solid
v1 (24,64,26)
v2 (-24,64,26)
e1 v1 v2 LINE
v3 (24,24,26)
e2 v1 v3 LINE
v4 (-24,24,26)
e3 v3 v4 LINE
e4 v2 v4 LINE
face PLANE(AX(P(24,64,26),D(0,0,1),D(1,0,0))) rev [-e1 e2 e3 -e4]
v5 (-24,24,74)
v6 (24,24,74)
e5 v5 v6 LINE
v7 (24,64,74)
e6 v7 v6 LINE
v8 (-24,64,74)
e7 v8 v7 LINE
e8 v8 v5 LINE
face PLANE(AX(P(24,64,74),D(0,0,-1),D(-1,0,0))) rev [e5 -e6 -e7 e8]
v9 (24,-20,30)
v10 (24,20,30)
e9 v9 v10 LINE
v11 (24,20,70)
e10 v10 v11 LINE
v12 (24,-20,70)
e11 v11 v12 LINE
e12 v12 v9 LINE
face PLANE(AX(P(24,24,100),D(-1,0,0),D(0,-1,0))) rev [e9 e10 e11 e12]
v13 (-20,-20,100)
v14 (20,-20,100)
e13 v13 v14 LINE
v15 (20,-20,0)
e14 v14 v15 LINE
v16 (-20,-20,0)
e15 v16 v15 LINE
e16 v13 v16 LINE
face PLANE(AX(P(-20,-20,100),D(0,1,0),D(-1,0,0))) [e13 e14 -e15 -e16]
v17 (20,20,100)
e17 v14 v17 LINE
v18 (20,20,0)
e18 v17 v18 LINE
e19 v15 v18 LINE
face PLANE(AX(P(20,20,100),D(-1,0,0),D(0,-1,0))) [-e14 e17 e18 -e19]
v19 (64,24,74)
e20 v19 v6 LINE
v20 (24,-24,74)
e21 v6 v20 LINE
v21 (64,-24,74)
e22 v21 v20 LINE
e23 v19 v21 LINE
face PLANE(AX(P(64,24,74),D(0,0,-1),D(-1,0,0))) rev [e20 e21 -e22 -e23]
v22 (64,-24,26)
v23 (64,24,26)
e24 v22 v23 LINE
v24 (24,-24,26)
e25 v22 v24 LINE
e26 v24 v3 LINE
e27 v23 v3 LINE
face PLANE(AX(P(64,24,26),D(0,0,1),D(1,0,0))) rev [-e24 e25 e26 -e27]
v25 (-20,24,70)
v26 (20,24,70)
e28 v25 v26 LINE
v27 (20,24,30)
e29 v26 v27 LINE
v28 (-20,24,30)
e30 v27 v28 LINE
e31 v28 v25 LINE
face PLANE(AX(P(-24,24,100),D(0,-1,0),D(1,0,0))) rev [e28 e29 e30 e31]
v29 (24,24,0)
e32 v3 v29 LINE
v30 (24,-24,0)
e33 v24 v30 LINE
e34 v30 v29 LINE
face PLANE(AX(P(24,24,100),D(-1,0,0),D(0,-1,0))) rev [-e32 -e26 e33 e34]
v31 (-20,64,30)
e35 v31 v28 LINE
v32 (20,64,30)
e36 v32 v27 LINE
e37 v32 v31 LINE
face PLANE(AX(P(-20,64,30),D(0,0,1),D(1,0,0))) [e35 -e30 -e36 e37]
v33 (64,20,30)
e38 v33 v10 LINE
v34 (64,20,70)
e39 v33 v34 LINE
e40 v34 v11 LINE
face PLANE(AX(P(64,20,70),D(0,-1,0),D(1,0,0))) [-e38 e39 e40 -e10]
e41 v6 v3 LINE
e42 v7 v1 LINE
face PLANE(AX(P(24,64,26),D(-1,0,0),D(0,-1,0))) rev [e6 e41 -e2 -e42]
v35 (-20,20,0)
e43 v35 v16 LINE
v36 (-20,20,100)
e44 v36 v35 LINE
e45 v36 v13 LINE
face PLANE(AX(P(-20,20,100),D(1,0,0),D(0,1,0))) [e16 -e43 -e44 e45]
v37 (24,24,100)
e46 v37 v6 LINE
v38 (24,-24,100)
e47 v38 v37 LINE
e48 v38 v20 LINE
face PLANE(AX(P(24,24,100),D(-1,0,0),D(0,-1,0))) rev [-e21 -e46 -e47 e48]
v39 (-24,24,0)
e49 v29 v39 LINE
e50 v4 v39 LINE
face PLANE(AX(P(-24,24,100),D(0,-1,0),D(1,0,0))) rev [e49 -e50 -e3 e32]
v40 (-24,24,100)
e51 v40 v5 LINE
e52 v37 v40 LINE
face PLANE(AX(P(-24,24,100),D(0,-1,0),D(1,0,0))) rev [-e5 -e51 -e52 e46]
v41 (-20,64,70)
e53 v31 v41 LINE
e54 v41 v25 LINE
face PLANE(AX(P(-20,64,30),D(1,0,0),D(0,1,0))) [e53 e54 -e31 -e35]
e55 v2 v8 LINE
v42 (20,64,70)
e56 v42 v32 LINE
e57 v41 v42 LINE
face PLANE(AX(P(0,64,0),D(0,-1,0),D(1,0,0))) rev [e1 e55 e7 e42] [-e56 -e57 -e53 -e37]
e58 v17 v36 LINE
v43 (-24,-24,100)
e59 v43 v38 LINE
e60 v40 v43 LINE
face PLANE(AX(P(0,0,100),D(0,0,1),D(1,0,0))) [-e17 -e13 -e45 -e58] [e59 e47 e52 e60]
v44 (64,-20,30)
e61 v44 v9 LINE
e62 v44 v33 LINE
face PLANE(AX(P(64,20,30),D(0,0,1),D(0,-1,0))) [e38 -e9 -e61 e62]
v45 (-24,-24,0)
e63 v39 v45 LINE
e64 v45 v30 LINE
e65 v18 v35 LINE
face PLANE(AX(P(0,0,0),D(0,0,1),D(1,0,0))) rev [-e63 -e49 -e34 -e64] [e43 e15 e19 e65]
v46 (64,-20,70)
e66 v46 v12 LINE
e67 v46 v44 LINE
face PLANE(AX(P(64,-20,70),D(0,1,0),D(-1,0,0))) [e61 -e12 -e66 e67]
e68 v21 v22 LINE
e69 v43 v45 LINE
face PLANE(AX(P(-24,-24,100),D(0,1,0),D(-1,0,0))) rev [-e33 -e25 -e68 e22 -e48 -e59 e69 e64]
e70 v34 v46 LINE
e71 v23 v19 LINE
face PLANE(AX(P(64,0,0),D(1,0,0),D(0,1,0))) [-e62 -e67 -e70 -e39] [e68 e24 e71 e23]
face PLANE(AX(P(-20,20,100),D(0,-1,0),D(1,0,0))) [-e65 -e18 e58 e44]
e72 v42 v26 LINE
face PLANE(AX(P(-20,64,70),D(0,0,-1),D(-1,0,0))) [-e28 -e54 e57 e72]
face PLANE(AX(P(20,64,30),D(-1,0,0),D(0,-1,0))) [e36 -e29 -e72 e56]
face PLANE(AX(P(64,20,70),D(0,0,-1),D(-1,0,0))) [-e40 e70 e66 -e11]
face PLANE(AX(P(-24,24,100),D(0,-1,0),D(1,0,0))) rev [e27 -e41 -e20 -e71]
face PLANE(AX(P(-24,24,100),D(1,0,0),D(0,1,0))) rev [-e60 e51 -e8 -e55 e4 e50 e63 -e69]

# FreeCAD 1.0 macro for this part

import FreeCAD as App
import Part
import Sketcher
from FreeCAD import Vector

doc = App.newDocument("Part")
params = doc.addObject("Spreadsheet::Sheet", "Params")
for row, (alias, value) in enumerate([
    ("sketch1_width", "48 mm"),
    ("sketch1_width2", "40 mm"),
    ("pad1_length", "100 mm"),
    ("sketch2_width", "48 mm"),
    ("sketch2_width2", "40 mm"),
    ("pad2_length", "40 mm"),
    ("sketch3_width", "48 mm"),
    ("sketch3_width2", "40 mm"),
    ("pad3_length", "40 mm"),
], start=1):
    params.set(f"A{row}", alias)
    params.set(f"B{row}", "=" + value)
    params.setAlias(f"B{row}", alias)

body = doc.addObject("PartDesign::Body", "Body")

# Sketch on XY plane
sketch1 = doc.addObject("Sketcher::SketchObject", "Sketch")
body.addObject(sketch1)
sketch1.AttachmentSupport = (doc.XY_Plane, [""])
sketch1.MapMode = "FlatFace"
sketch1.addGeometry([
    Part.LineSegment(Vector(-24, 24, 0), Vector(-24, -24, 0)),  # 0
    Part.LineSegment(Vector(-24, -24, 0), Vector(24, -24, 0)),  # 1
    Part.LineSegment(Vector(24, -24, 0), Vector(24, 24, 0)),  # 2
    Part.LineSegment(Vector(24, 24, 0), Vector(-24, 24, 0)),  # 3
    Part.LineSegment(Vector(20, -20, 0), Vector(-20, -20, 0)),  # 4
    Part.LineSegment(Vector(-20, -20, 0), Vector(-20, 20, 0)),  # 5
    Part.LineSegment(Vector(-20, 20, 0), Vector(20, 20, 0)),  # 6
    Part.LineSegment(Vector(20, 20, 0), Vector(20, -20, 0)),  # 7
], False)
sketch1.addConstraint([
    Sketcher.Constraint("Coincident", 0, 2, 1, 1),
    Sketcher.Constraint("Coincident", 1, 2, 2, 1),
    Sketcher.Constraint("Coincident", 2, 2, 3, 1),
    Sketcher.Constraint("Coincident", 3, 2, 0, 1),
    Sketcher.Constraint("Coincident", 4, 2, 5, 1),
    Sketcher.Constraint("Coincident", 5, 2, 6, 1),
    Sketcher.Constraint("Coincident", 6, 2, 7, 1),
    Sketcher.Constraint("Coincident", 7, 2, 4, 1),
    Sketcher.Constraint("Vertical", 0),
    Sketcher.Constraint("Horizontal", 1),
    Sketcher.Constraint("Vertical", 2),
    Sketcher.Constraint("Horizontal", 3),
    Sketcher.Constraint("Horizontal", 4),
    Sketcher.Constraint("Vertical", 5),
    Sketcher.Constraint("Horizontal", 6),
    Sketcher.Constraint("Vertical", 7),
    Sketcher.Constraint("Symmetric", 0, 2, 2, 2, -1, 1),
    Sketcher.Constraint("Symmetric", 4, 2, 6, 2, -1, 1),
    Sketcher.Constraint("Equal", 3, 0),
    Sketcher.Constraint("Equal", 6, 5),
    Sketcher.Constraint("DistanceX", 1, 1, 1, 2, 48.0),
    Sketcher.Constraint("DistanceX", 4, 2, 4, 1, 40.0),
])
sketch1.setExpression("Constraints[20]", "Params.sketch1_width")
sketch1.setExpression("Constraints[21]", "Params.sketch1_width2")
pad1 = doc.addObject("PartDesign::Pad", "Pad")
body.addObject(pad1)
pad1.Profile = sketch1
pad1.setExpression("Length", "Params.pad1_length")

# Sketch on YZ plane
sketch2 = doc.addObject("Sketcher::SketchObject", "Sketch001")
body.addObject(sketch2)
sketch2.AttachmentSupport = (doc.YZ_Plane, [""])
sketch2.MapMode = "FlatFace"
sketch2.AttachmentOffset = App.Placement(Vector(0, 0, 24), App.Rotation())
sketch2.addGeometry([
    Part.LineSegment(Vector(24, 74, 0), Vector(-24, 74, 0)),  # 0
    Part.LineSegment(Vector(-24, 74, 0), Vector(-24, 26, 0)),  # 1
    Part.LineSegment(Vector(-24, 26, 0), Vector(24, 26, 0)),  # 2
    Part.LineSegment(Vector(24, 26, 0), Vector(24, 74, 0)),  # 3
    Part.LineSegment(Vector(-20, 30, 0), Vector(-20, 70, 0)),  # 4
    Part.LineSegment(Vector(-20, 70, 0), Vector(20, 70, 0)),  # 5
    Part.LineSegment(Vector(20, 70, 0), Vector(20, 30, 0)),  # 6
    Part.LineSegment(Vector(20, 30, 0), Vector(-20, 30, 0)),  # 7
], False)
sketch2.addConstraint([
    Sketcher.Constraint("Coincident", 0, 2, 1, 1),
    Sketcher.Constraint("Coincident", 1, 2, 2, 1),
    Sketcher.Constraint("Coincident", 2, 2, 3, 1),
    Sketcher.Constraint("Coincident", 3, 2, 0, 1),
    Sketcher.Constraint("Coincident", 4, 2, 5, 1),
    Sketcher.Constraint("Coincident", 5, 2, 6, 1),
    Sketcher.Constraint("Coincident", 6, 2, 7, 1),
    Sketcher.Constraint("Coincident", 7, 2, 4, 1),
    Sketcher.Constraint("Horizontal", 0),
    Sketcher.Constraint("Vertical", 1),
    Sketcher.Constraint("Horizontal", 2),
    Sketcher.Constraint("Vertical", 3),
    Sketcher.Constraint("Vertical", 4),
    Sketcher.Constraint("Horizontal", 5),
    Sketcher.Constraint("Vertical", 6),
    Sketcher.Constraint("Horizontal", 7),
    Sketcher.Constraint("Equal", 2, 1),
    Sketcher.Constraint("Equal", 7, 4),
    Sketcher.Constraint("DistanceX", 0, 2, 0, 1, 48.0),
    Sketcher.Constraint("DistanceX", 5, 1, 5, 2, 40.0),
    Sketcher.Constraint("DistanceX", 0, 2, -1, 1, 24.0),
    Sketcher.Constraint("DistanceY", -1, 1, 0, 2, 74.0),
    Sketcher.Constraint("DistanceX", 4, 2, -1, 1, 20.0),
    Sketcher.Constraint("DistanceY", -1, 1, 4, 2, 70.0),
])
sketch2.setExpression("Constraints[18]", "Params.sketch2_width")
sketch2.setExpression("Constraints[19]", "Params.sketch2_width2")
pad2 = doc.addObject("PartDesign::Pad", "Pad001")
body.addObject(pad2)
pad2.Profile = sketch2
pad2.setExpression("Length", "Params.pad2_length")

# Sketch on XZ plane
sketch3 = doc.addObject("Sketcher::SketchObject", "Sketch002")
body.addObject(sketch3)
sketch3.AttachmentSupport = (doc.XZ_Plane, [""])
sketch3.MapMode = "FlatFace"
sketch3.AttachmentOffset = App.Placement(Vector(0, 0, -24), App.Rotation())
sketch3.addGeometry([
    Part.LineSegment(Vector(-24, 26, 0), Vector(-24, 74, 0)),  # 0
    Part.LineSegment(Vector(-24, 74, 0), Vector(24, 74, 0)),  # 1
    Part.LineSegment(Vector(24, 74, 0), Vector(24, 26, 0)),  # 2
    Part.LineSegment(Vector(24, 26, 0), Vector(-24, 26, 0)),  # 3
    Part.LineSegment(Vector(20, 70, 0), Vector(-20, 70, 0)),  # 4
    Part.LineSegment(Vector(-20, 70, 0), Vector(-20, 30, 0)),  # 5
    Part.LineSegment(Vector(-20, 30, 0), Vector(20, 30, 0)),  # 6
    Part.LineSegment(Vector(20, 30, 0), Vector(20, 70, 0)),  # 7
], False)
sketch3.addConstraint([
    Sketcher.Constraint("Coincident", 0, 2, 1, 1),
    Sketcher.Constraint("Coincident", 1, 2, 2, 1),
    Sketcher.Constraint("Coincident", 2, 2, 3, 1),
    Sketcher.Constraint("Coincident", 3, 2, 0, 1),
    Sketcher.Constraint("Coincident", 4, 2, 5, 1),
    Sketcher.Constraint("Coincident", 5, 2, 6, 1),
    Sketcher.Constraint("Coincident", 6, 2, 7, 1),
    Sketcher.Constraint("Coincident", 7, 2, 4, 1),
    Sketcher.Constraint("Vertical", 0),
    Sketcher.Constraint("Horizontal", 1),
    Sketcher.Constraint("Vertical", 2),
    Sketcher.Constraint("Horizontal", 3),
    Sketcher.Constraint("Horizontal", 4),
    Sketcher.Constraint("Vertical", 5),
    Sketcher.Constraint("Horizontal", 6),
    Sketcher.Constraint("Vertical", 7),
    Sketcher.Constraint("Equal", 3, 0),
    Sketcher.Constraint("Equal", 6, 5),
    Sketcher.Constraint("DistanceX", 1, 1, 1, 2, 48.0),
    Sketcher.Constraint("DistanceX", 4, 2, 4, 1, 40.0),
    Sketcher.Constraint("DistanceX", 0, 2, -1, 1, 24.0),
    Sketcher.Constraint("DistanceY", -1, 1, 0, 2, 74.0),
    Sketcher.Constraint("DistanceX", 4, 2, -1, 1, 20.0),
    Sketcher.Constraint("DistanceY", -1, 1, 4, 2, 70.0),
])
sketch3.setExpression("Constraints[18]", "Params.sketch3_width")
sketch3.setExpression("Constraints[19]", "Params.sketch3_width2")
pad3 = doc.addObject("PartDesign::Pad", "Pad002")
body.addObject(pad3)
pad3.Profile = sketch3
pad3.setExpression("Length", "Params.pad3_length")
pad3.Reversed = True

doc.recompute()
